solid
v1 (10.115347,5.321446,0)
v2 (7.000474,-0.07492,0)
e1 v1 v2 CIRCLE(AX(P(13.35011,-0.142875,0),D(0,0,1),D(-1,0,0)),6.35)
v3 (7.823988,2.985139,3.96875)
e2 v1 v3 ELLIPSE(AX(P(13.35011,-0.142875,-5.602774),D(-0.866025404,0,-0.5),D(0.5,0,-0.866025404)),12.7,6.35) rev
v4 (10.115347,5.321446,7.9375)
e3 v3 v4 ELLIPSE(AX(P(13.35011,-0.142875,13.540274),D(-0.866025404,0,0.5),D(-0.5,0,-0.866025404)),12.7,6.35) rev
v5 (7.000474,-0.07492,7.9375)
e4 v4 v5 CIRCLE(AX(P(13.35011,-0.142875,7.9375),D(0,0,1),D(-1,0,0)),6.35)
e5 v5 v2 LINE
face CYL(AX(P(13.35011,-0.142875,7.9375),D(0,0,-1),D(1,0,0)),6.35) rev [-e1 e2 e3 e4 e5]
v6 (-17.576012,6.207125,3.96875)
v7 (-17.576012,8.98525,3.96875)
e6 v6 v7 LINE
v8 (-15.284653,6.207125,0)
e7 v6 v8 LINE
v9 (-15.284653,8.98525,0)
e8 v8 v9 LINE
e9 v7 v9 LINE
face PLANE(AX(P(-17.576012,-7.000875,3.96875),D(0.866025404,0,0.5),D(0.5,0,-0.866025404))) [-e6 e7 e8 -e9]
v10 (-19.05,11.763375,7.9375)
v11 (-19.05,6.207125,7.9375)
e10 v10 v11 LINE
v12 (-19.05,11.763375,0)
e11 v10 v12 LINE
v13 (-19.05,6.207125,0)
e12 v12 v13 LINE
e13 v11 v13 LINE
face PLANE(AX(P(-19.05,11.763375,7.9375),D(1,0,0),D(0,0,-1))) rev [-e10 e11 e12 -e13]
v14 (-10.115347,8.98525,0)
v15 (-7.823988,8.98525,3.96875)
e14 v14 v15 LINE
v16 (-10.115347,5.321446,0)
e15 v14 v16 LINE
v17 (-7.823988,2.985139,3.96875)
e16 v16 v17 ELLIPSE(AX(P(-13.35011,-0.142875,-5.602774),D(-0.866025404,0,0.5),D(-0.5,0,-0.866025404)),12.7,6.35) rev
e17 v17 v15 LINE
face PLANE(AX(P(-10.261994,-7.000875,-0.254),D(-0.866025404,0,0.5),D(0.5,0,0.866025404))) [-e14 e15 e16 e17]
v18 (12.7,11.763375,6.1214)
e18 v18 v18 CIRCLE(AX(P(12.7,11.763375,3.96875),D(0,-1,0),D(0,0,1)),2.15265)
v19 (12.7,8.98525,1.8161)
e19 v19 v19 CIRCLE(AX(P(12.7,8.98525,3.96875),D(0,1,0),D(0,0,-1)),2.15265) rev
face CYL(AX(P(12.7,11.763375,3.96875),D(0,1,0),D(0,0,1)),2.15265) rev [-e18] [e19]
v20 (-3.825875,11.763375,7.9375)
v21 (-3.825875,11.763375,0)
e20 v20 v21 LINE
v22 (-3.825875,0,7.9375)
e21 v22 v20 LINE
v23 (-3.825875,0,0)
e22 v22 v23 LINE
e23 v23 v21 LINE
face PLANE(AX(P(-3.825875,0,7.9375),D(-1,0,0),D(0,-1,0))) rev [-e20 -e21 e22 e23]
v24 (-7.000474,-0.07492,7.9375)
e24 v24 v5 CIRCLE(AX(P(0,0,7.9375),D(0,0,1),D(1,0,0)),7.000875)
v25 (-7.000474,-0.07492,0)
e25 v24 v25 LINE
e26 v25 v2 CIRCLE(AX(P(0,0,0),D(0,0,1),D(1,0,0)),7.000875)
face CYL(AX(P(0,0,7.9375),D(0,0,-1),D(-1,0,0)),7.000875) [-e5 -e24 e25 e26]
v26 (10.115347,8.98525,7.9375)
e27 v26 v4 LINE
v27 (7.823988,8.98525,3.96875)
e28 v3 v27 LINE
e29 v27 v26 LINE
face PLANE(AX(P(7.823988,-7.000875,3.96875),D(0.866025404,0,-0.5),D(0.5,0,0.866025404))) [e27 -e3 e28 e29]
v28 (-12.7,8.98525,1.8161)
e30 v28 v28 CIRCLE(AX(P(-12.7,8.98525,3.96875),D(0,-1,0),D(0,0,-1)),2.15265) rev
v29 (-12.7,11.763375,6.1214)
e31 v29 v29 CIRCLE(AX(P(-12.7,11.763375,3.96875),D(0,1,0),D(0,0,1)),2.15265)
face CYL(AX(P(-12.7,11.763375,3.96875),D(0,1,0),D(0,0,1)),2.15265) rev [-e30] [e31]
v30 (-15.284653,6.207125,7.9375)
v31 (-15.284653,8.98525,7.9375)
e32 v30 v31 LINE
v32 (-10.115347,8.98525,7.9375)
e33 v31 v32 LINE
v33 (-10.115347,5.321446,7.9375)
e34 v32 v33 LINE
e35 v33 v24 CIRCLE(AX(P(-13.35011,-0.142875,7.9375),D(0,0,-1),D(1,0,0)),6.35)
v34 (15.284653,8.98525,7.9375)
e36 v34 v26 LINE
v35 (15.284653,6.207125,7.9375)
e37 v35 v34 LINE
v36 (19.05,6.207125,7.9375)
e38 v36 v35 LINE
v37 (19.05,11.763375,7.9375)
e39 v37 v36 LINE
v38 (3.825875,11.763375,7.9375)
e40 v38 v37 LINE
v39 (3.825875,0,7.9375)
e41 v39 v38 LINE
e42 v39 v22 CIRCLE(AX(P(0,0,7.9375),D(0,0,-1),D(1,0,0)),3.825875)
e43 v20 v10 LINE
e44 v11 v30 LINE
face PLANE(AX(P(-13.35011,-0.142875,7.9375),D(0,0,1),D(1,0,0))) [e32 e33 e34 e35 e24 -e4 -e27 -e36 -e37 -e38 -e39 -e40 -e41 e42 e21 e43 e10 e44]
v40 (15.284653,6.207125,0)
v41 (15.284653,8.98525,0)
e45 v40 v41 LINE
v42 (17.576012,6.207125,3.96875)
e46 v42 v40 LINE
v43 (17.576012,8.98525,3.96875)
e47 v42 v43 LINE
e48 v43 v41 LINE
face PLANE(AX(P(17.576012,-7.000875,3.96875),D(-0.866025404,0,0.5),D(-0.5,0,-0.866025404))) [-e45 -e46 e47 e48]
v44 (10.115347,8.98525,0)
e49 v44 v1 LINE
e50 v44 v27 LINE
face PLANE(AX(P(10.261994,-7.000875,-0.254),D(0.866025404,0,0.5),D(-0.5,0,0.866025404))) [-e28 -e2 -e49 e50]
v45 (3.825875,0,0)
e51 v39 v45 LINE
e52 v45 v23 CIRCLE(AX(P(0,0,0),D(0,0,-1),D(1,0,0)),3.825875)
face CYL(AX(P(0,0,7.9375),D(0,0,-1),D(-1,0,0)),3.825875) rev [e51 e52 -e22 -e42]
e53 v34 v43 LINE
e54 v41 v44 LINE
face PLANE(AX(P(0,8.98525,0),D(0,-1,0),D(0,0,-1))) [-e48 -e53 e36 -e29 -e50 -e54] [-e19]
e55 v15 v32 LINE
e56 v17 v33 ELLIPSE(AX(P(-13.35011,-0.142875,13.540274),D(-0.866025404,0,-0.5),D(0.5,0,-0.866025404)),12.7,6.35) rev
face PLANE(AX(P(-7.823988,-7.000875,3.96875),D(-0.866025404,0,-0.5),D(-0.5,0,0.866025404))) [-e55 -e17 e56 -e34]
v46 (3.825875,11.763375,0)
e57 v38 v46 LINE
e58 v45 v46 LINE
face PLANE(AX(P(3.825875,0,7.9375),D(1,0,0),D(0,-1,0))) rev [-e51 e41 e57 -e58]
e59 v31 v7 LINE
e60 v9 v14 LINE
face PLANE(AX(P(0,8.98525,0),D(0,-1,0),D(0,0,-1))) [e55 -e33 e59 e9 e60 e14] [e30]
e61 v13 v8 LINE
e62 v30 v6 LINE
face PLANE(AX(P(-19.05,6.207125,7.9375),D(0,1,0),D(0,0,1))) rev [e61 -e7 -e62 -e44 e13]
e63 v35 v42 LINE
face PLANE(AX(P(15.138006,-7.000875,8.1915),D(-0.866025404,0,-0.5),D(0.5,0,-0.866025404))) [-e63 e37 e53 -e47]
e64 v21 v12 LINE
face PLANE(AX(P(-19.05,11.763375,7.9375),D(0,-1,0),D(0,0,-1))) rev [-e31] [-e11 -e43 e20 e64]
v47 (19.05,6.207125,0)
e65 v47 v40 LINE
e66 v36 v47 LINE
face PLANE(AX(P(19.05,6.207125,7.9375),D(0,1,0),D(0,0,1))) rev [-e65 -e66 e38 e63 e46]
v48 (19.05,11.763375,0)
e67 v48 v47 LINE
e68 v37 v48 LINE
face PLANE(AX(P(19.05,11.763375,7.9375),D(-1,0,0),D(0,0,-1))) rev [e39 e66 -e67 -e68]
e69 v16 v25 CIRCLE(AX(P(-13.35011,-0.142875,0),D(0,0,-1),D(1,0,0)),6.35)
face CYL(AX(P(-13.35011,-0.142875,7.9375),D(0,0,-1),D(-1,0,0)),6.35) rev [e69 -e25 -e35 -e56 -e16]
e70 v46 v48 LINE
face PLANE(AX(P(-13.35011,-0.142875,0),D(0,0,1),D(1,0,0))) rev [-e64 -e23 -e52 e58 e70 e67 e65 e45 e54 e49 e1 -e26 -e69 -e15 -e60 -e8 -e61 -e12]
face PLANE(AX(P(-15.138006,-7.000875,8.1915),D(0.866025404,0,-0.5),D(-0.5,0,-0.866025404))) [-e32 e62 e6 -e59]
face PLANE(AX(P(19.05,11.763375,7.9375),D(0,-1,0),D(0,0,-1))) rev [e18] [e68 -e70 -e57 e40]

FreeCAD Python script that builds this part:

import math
import FreeCAD as App
import Part
import Sketcher

V = App.Vector
Q = App.Units.Quantity

doc = App.newDocument("Part")
body = doc.addObject("PartDesign::Body", "Body")

# Sketch on XY plane
sketch1 = body.newObject("Sketcher::SketchObject", "Sketch")
sketch1.AttachmentSupport = (doc.getObject("XY_Plane"), [""])
sketch1.MapMode = "FlatFace"
sketch1.addGeometry([
    Part.LineSegment(V(-19.1, 11.8, 0), V(-19.1, 6.2, 0)),  # 0
    Part.LineSegment(V(-19.1, 6.2, 0), V(-13.4, 6.2, 0)),  # 1
    Part.ArcOfCircle(Part.Circle(V(-13.4, -0.1, 0), V(0, 0, 1), 6.3), math.radians(1), math.radians(90)),  # 2
    Part.ArcOfCircle(Part.Circle(V(0, 0, 0), V(0, 0, 1), 7), math.radians(-179), math.radians(-90)),  # 3
    Part.LineSegment(V(0, -7, 0), V(0, -3.8, 0)),  # 4
    Part.ArcOfCircle(Part.Circle(V(0, 0, 0), V(0, 0, 1), 3.8), math.radians(-180), math.radians(-90)),  # 5
    Part.LineSegment(V(-3.8, 0, 0), V(-3.8, 11.8, 0)),  # 6
    Part.LineSegment(V(-3.8, 11.8, 0), V(-19.1, 11.8, 0)),  # 7
], False)
sketch1.addConstraint([
    Sketcher.Constraint("Coincident", 0, 2, 1, 1),
    Sketcher.Constraint("Tangent", 1, 2, 2, 2),
    Sketcher.Constraint("Tangent", 2, 1, 3, 1),
    Sketcher.Constraint("Coincident", 3, 2, 4, 1),
    Sketcher.Constraint("Coincident", 4, 2, 5, 2),
    Sketcher.Constraint("Tangent", 5, 1, 6, 1),
    Sketcher.Constraint("Coincident", 6, 2, 7, 1),
    Sketcher.Constraint("Coincident", 7, 2, 0, 1),
    Sketcher.Constraint("Vertical", 0),
    Sketcher.Constraint("Horizontal", 1),
    Sketcher.Constraint("Vertical", 4),
    Sketcher.Constraint("Vertical", 6),
    Sketcher.Constraint("Horizontal", 7),
    Sketcher.Constraint("Coincident", 3, 3, -1, 1),
    Sketcher.Constraint("Coincident", 5, 3, -1, 1),
    Sketcher.Constraint("PointOnObject", 3, 2, -2),
    Sketcher.Constraint("Radius", 2, Q("0.25 in")),
    Sketcher.Constraint("DistanceY", 0, 2, 0, 1, Q("0.21875 in")),
    Sketcher.Constraint("DistanceY", 4, 1, 4, 2, Q("0.125 in")),
    Sketcher.Constraint("DistanceX", 0, 2, -1, 1, Q("0.75 in")),
    Sketcher.Constraint("DistanceY", 3, 2, 2, 3, Q("0.27 in")),
    Sketcher.Constraint("Radius", 3, 7.000875),
])
pad1 = body.newObject("PartDesign::Pad", "Pad")
pad1.Profile = sketch1
pad1.Length = Q("0.3125 in")

# Sketch on XZ plane
sketch2 = body.newObject("Sketcher::SketchObject", "Sketch001")
sketch2.AttachmentSupport = (doc.getObject("XZ_Plane"), [""])
sketch2.MapMode = "FlatFace"
sketch2.AttachmentOffset = App.Placement(V(0, 0, -11.763375), App.Rotation())
sketch2.addGeometry(Part.Circle(V(-12.7, 4, 0), V(0, 0, 1), 2.2), False)
sketch2.addConstraint([
    Sketcher.Constraint("Diameter", 0, Q("0.1695 in")),
    Sketcher.Constraint("DistanceX", 0, 3, -1, 1, Q("0.5 in")),
    Sketcher.Constraint("DistanceY", -1, 1, 0, 3, Q("0.15625 in")),
])
doc.recompute()
hole = body.newObject("PartDesign::Hole", "Hole")
hole.Profile = sketch2
hole.ThreadType = "None"
hole.Diameter = Q("0.1695 in")
hole.DepthType = "ThroughAll"
hole.Reversed = True

# Sketch on XZ plane
sketch3 = body.newObject("Sketcher::SketchObject", "Sketch002")
sketch3.AttachmentSupport = (doc.getObject("XZ_Plane"), [""])
sketch3.MapMode = "FlatFace"
sketch3.AttachmentOffset = App.Placement(V(0, 0, -6.207125), App.Rotation())
sketch3.addGeometry([
    Part.LineSegment(V(-17.6, 4, 0), V(-15.1, -0.3, 0)),  # 0
    Part.LineSegment(V(-15.1, -0.3, 0), V(-10.3, -0.3, 0)),  # 1
    Part.LineSegment(V(-10.3, -0.3, 0), V(-7.8, 4, 0)),  # 2
    Part.LineSegment(V(-7.8, 4, 0), V(-10.3, 8.2, 0)),  # 3
    Part.LineSegment(V(-10.3, 8.2, 0), V(-15.1, 8.2, 0)),  # 4
    Part.LineSegment(V(-15.1, 8.2, 0), V(-17.6, 4, 0)),  # 5
], False)
sketch3.addConstraint([
    Sketcher.Constraint("Coincident", 0, 2, 1, 1),
    Sketcher.Constraint("Coincident", 1, 2, 2, 1),
    Sketcher.Constraint("Coincident", 2, 2, 3, 1),
    Sketcher.Constraint("Coincident", 3, 2, 4, 1),
    Sketcher.Constraint("Coincident", 4, 2, 5, 1),
    Sketcher.Constraint("Coincident", 5, 2, 0, 1),
    Sketcher.Constraint("Horizontal", 1),
    Sketcher.Constraint("Horizontal", 4),
    Sketcher.Constraint("Parallel", 0, 3),
    Sketcher.Constraint("Parallel", 2, 5),
    Sketcher.Constraint("Horizontal", 2, 2, 5, 2),
    Sketcher.Constraint("Vertical", 1, 2, 3, 2),
    Sketcher.Constraint("Vertical", 0, 2, 4, 2),
    Sketcher.Constraint("Angle", 0, Q("-60 deg")),
    Sketcher.Constraint("DistanceY", 0, 2, -1, 1, Q("0.01 in")),
    Sketcher.Constraint("DistanceY", -1, 1, 2, 2, Q("0.15625 in")),
    Sketcher.Constraint("DistanceX", 1, 1, 1, 2, 4.876012),
    Sketcher.Constraint("DistanceX", 2, 2, -1, 1, 7.823988),
])
pocket1 = body.newObject("PartDesign::Pocket", "Pocket")
pocket1.Profile = sketch3
pocket1.Type = "TwoLengths"
pocket1.Length = 25.502197
pocket1.Length2 = Q("0.109375 in")
pocket1.Reversed = True
body2 = doc.addObject("PartDesign::Body", "Body001")
doc.recompute()

body2.BaseFeature = body
doc.recompute()

mirroring = doc.addObject("Part::Mirroring", "Mirroring")
mirroring.Source = body
mirroring.Base = V(0, -3.825875, 7.9375)
mirroring.Normal = V(-1, 0, 0)
body3 = doc.addObject("PartDesign::Body", "Body002")
body3.BaseFeature = mirroring
boolean = body2.newObject("PartDesign::Boolean", "Boolean")
boolean.Type = "Fuse"
boolean.addObjects([body3])
doc.recompute()
mirroring.Visibility = False

doc.recompute()
